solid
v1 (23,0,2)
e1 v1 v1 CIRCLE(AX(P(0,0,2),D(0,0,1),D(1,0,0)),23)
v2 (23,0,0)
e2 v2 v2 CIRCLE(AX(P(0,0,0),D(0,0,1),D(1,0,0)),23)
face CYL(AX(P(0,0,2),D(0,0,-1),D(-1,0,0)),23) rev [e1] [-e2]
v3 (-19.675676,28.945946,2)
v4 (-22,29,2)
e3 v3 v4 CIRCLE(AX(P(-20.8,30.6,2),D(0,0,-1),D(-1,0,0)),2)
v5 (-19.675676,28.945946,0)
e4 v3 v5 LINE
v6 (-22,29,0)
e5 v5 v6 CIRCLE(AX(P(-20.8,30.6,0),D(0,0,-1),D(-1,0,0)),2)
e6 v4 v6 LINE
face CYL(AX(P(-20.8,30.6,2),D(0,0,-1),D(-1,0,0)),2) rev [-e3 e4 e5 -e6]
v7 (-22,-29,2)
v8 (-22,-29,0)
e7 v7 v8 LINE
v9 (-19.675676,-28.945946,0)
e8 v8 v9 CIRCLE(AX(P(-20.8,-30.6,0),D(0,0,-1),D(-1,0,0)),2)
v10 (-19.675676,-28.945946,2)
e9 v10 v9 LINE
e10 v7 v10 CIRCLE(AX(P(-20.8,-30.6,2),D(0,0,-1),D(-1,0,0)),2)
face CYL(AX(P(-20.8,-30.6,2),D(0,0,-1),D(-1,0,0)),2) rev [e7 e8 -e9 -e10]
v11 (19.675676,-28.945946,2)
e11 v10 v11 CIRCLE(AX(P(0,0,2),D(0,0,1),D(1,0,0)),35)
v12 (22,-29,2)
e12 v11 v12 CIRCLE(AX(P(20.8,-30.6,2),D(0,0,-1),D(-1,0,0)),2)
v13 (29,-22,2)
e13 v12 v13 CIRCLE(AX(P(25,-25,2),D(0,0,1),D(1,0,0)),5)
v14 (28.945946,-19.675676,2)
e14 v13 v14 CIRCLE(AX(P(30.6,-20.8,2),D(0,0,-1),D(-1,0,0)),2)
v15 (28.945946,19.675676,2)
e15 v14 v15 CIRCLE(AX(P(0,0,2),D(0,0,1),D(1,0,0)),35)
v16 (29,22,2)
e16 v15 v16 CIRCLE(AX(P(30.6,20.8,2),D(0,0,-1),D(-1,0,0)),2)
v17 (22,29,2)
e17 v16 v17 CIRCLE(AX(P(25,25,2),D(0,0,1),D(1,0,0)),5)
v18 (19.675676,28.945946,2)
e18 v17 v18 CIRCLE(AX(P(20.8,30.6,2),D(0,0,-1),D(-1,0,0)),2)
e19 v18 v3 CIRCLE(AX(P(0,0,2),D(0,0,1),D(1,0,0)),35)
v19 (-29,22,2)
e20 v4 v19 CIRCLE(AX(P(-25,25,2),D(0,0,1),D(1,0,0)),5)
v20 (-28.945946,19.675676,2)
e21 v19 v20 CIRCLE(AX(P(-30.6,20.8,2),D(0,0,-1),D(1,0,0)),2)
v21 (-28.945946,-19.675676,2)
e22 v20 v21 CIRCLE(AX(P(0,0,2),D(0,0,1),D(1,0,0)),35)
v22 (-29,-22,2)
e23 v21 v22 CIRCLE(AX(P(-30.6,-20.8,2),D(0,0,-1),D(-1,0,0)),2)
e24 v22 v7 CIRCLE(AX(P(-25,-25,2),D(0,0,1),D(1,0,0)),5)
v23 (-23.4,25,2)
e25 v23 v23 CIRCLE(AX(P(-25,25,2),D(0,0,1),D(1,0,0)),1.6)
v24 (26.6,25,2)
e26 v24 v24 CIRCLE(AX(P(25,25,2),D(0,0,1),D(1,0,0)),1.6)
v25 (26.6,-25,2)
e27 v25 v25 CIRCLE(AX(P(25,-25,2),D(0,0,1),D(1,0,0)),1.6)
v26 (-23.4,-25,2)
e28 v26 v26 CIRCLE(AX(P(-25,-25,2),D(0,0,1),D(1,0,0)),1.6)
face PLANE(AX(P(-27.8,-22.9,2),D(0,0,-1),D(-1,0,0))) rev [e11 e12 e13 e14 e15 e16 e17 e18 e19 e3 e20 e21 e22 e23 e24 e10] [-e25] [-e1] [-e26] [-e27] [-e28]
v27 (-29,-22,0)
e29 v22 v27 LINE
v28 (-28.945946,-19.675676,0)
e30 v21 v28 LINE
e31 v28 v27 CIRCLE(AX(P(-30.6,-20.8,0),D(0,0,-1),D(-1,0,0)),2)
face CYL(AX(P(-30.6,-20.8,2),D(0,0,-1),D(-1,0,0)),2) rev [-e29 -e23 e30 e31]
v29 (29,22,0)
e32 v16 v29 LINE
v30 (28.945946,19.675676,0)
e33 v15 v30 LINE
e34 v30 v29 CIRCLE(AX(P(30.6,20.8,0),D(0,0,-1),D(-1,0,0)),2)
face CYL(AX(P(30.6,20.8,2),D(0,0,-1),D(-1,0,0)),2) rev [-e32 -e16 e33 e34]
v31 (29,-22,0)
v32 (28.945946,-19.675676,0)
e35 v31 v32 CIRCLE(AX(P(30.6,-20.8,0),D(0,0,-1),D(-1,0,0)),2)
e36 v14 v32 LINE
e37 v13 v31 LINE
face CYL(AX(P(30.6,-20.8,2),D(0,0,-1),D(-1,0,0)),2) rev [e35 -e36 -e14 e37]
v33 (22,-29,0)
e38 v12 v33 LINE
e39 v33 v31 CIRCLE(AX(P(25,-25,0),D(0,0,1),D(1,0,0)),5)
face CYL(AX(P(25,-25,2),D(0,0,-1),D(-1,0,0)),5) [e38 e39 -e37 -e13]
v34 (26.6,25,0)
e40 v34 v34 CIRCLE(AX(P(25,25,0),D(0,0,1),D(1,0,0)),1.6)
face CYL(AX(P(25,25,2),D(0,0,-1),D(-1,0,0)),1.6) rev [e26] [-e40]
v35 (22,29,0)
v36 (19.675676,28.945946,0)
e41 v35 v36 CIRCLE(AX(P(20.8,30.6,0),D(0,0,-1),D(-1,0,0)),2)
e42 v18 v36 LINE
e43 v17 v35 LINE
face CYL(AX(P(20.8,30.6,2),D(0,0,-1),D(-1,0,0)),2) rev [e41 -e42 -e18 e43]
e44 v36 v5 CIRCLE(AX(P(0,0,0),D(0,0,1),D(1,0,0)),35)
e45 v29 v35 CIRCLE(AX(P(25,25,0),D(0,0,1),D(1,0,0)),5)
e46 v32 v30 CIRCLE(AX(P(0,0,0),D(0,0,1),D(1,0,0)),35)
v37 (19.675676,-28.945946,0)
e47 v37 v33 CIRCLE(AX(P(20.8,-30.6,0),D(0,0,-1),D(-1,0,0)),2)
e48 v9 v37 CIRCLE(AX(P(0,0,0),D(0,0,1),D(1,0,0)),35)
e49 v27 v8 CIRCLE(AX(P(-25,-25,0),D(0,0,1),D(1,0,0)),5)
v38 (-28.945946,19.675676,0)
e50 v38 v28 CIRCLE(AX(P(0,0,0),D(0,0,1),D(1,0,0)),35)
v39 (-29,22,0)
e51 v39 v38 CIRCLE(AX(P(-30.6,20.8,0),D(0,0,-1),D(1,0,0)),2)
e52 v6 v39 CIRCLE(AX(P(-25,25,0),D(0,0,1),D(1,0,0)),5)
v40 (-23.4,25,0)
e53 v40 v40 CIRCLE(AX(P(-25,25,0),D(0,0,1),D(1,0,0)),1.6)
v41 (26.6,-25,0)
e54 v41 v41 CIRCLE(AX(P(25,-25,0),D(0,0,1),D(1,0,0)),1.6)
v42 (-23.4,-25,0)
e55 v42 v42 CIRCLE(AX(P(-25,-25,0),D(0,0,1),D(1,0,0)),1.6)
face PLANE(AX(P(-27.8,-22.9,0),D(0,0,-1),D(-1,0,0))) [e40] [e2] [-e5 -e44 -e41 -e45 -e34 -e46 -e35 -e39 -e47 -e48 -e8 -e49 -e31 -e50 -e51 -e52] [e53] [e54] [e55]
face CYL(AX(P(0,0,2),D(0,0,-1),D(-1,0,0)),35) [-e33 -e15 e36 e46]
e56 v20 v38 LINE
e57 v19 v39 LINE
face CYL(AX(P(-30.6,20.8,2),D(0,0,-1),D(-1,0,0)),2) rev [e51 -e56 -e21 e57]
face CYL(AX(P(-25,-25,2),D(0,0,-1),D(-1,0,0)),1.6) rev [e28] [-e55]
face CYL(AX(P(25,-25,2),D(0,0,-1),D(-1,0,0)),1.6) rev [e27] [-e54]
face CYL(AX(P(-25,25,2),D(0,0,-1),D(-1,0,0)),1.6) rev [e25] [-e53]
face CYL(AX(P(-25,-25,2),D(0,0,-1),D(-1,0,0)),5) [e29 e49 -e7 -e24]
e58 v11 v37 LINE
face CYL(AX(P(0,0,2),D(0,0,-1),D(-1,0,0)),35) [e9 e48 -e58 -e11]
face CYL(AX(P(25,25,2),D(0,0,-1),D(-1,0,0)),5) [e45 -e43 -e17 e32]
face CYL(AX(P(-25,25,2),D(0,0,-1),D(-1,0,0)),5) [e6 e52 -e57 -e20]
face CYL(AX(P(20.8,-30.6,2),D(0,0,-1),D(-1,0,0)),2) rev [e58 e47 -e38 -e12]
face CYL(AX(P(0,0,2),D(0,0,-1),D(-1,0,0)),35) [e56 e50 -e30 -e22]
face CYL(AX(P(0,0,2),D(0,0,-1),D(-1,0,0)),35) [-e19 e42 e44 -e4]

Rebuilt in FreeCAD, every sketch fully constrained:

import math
import FreeCAD as App
import Part
import Sketcher

V = App.Vector
Q = App.Units.Quantity

doc = App.newDocument("Part")
params = doc.addObject("Spreadsheet::Sheet", "Params")
for row, (alias, value) in enumerate([
    ("sketch1_diameter", "46 mm"),
    ("sketch1_radius", "35 mm"),
    ("sketch1_radius2", "2 mm"),
    ("sketch1_radius3", "5 mm"),
    ("sketch1_diameter2", "3.2 mm"),
    ("pad1_length", "2 mm"),
], start=1):
    params.set(f"A{row}", alias)
    params.set(f"B{row}", "=" + value)
    params.setAlias(f"B{row}", alias)

body = doc.addObject("PartDesign::Body", "Body")

sketch1 = body.newObject("Sketcher::SketchObject", "Sketch")
sketch1.AttachmentSupport = (doc.getObject("XY_Plane"), [""])
sketch1.MapMode = "FlatFace"
sketch1.addGeometry([
    Part.ArcOfCircle(Part.Circle(V(0, 0, 0), V(0, 0, 1), 35), math.radians(146), math.radians(214)),
    Part.ArcOfCircle(Part.Circle(V(-30.6, -20.8, 0), V(0, 0, 1), 2), math.radians(-37), math.radians(34)),
    Part.ArcOfCircle(Part.Circle(V(-25, -25, 0), V(0, 0, 1), 5), math.radians(143), math.radians(307)),
    Part.ArcOfCircle(Part.Circle(V(-20.8, -30.6, 0), V(0, 0, 1), 2), math.radians(56), math.radians(127)),
    Part.ArcOfCircle(Part.Circle(V(0, 0, 0), V(0, 0, 1), 35), math.radians(-124), math.radians(-56)),
    Part.ArcOfCircle(Part.Circle(V(20.8, -30.6, 0), V(0, 0, 1), 2), math.radians(53), math.radians(124)),
    Part.ArcOfCircle(Part.Circle(V(25, -25, 0), V(0, 0, 1), 5), math.radians(-127), math.radians(37)),
    Part.ArcOfCircle(Part.Circle(V(30.6, -20.8, 0), V(0, 0, 1), 2), math.radians(146), math.radians(217)),
    Part.ArcOfCircle(Part.Circle(V(0, 0, 0), V(0, 0, 1), 35), math.radians(-34), math.radians(34)),
    Part.ArcOfCircle(Part.Circle(V(30.6, 20.8, 0), V(0, 0, 1), 2), math.radians(143), math.radians(214)),
    Part.ArcOfCircle(Part.Circle(V(25, 25, 0), V(0, 0, 1), 5), math.radians(-37), math.radians(127)),
    Part.ArcOfCircle(Part.Circle(V(20.8, 30.6, 0), V(0, 0, 1), 2), math.radians(-124), math.radians(-53)),
    Part.ArcOfCircle(Part.Circle(V(0, 0, 0), V(0, 0, 1), 35), math.radians(56), math.radians(124)),
    Part.ArcOfCircle(Part.Circle(V(-20.8, 30.6, 0), V(0, 0, 1), 2), math.radians(-127), math.radians(-56)),
    Part.ArcOfCircle(Part.Circle(V(-25, 25, 0), V(0, 0, 1), 5), math.radians(53), math.radians(217)),
    Part.ArcOfCircle(Part.Circle(V(-30.6, 20.8, 0), V(0, 0, 1), 2), math.radians(-34), math.radians(37)),
    Part.Circle(V(-25, -25, 0), V(0, 0, 1), 1.6),
    Part.Circle(V(25, -25, 0), V(0, 0, 1), 1.6),
    Part.Circle(V(-25, 25, 0), V(0, 0, 1), 1.6),
    Part.Circle(V(0, 0, 0), V(0, 0, 1), 23),
    Part.Circle(V(25, 25, 0), V(0, 0, 1), 1.6),
], False)
sketch1.addConstraint([
    Sketcher.Constraint("Tangent", 0, 2, 1, 2),
    Sketcher.Constraint("Tangent", 1, 1, 2, 1),
    Sketcher.Constraint("Tangent", 2, 2, 3, 2),
    Sketcher.Constraint("Tangent", 3, 1, 4, 1),
    Sketcher.Constraint("Tangent", 4, 2, 5, 2),
    Sketcher.Constraint("Tangent", 5, 1, 6, 1),
    Sketcher.Constraint("Tangent", 6, 2, 7, 2),
    Sketcher.Constraint("Tangent", 7, 1, 8, 1),
    Sketcher.Constraint("Tangent", 8, 2, 9, 2),
    Sketcher.Constraint("Tangent", 9, 1, 10, 1),
    Sketcher.Constraint("Tangent", 10, 2, 11, 2),
    Sketcher.Constraint("Tangent", 11, 1, 12, 1),
    Sketcher.Constraint("Tangent", 12, 2, 13, 2),
    Sketcher.Constraint("Tangent", 13, 1, 14, 1),
    Sketcher.Constraint("Tangent", 14, 2, 15, 2),
    Sketcher.Constraint("Tangent", 15, 1, 0, 1),
    Sketcher.Constraint("Coincident", 0, 3, -1, 1),
    Sketcher.Constraint("Coincident", 4, 3, -1, 1),
    Sketcher.Constraint("Coincident", 8, 3, -1, 1),
    Sketcher.Constraint("Coincident", 12, 3, -1, 1),
    Sketcher.Constraint("Coincident", 19, 3, -1, 1),
    Sketcher.Constraint("Coincident", 16, 3, 2, 3),
    Sketcher.Constraint("Coincident", 17, 3, 6, 3),
    Sketcher.Constraint("Coincident", 18, 3, 14, 3),
    Sketcher.Constraint("Coincident", 20, 3, 10, 3),
    Sketcher.Constraint("Equal", 1, 3),
    Sketcher.Constraint("Equal", 0, 4),
    Sketcher.Constraint("Equal", 3, 5),
    Sketcher.Constraint("Equal", 2, 6),
    Sketcher.Constraint("Equal", 5, 7),
    Sketcher.Constraint("Equal", 4, 8),
    Sketcher.Constraint("Equal", 7, 9),
    Sketcher.Constraint("Equal", 6, 10),
    Sketcher.Constraint("Equal", 9, 11),
    Sketcher.Constraint("Equal", 8, 12),
    Sketcher.Constraint("Equal", 11, 13),
    Sketcher.Constraint("Equal", 10, 14),
    Sketcher.Constraint("Equal", 13, 15),
    Sketcher.Constraint("Equal", 16, 17),
    Sketcher.Constraint("Equal", 17, 18),
    Sketcher.Constraint("Equal", 18, 20),
    Sketcher.Constraint("Symmetric", 2, 3, 10, 3, -1, 1),
    Sketcher.Constraint("Symmetric", 6, 3, 14, 3, -1, 1),
    Sketcher.Constraint("Symmetric", 2, 3, 6, 3, -2),
    Sketcher.Constraint("Diameter", 19, Q("46 mm")),
    Sketcher.Constraint("Radius", 0, Q("35 mm")),
    Sketcher.Constraint("Radius", 1, Q("2 mm")),
    Sketcher.Constraint("Radius", 2, Q("5 mm")),
    Sketcher.Constraint("Diameter", 16, Q("3.2 mm")),
    Sketcher.Constraint("DistanceX", 2, 3, -1, 1, Q("25 mm")),
    Sketcher.Constraint("DistanceY", 2, 3, -1, 1, Q("25 mm")),
])
sketch1.setExpression("Constraints[44]", "Params.sketch1_diameter")
sketch1.setExpression("Constraints[45]", "Params.sketch1_radius")
sketch1.setExpression("Constraints[46]", "Params.sketch1_radius2")
sketch1.setExpression("Constraints[47]", "Params.sketch1_radius3")
sketch1.setExpression("Constraints[48]", "Params.sketch1_diameter2")
pad1 = body.newObject("PartDesign::Pad", "Pad")
pad1.Profile = sketch1
pad1.setExpression("Length", "Params.pad1_length")

doc.recompute()
